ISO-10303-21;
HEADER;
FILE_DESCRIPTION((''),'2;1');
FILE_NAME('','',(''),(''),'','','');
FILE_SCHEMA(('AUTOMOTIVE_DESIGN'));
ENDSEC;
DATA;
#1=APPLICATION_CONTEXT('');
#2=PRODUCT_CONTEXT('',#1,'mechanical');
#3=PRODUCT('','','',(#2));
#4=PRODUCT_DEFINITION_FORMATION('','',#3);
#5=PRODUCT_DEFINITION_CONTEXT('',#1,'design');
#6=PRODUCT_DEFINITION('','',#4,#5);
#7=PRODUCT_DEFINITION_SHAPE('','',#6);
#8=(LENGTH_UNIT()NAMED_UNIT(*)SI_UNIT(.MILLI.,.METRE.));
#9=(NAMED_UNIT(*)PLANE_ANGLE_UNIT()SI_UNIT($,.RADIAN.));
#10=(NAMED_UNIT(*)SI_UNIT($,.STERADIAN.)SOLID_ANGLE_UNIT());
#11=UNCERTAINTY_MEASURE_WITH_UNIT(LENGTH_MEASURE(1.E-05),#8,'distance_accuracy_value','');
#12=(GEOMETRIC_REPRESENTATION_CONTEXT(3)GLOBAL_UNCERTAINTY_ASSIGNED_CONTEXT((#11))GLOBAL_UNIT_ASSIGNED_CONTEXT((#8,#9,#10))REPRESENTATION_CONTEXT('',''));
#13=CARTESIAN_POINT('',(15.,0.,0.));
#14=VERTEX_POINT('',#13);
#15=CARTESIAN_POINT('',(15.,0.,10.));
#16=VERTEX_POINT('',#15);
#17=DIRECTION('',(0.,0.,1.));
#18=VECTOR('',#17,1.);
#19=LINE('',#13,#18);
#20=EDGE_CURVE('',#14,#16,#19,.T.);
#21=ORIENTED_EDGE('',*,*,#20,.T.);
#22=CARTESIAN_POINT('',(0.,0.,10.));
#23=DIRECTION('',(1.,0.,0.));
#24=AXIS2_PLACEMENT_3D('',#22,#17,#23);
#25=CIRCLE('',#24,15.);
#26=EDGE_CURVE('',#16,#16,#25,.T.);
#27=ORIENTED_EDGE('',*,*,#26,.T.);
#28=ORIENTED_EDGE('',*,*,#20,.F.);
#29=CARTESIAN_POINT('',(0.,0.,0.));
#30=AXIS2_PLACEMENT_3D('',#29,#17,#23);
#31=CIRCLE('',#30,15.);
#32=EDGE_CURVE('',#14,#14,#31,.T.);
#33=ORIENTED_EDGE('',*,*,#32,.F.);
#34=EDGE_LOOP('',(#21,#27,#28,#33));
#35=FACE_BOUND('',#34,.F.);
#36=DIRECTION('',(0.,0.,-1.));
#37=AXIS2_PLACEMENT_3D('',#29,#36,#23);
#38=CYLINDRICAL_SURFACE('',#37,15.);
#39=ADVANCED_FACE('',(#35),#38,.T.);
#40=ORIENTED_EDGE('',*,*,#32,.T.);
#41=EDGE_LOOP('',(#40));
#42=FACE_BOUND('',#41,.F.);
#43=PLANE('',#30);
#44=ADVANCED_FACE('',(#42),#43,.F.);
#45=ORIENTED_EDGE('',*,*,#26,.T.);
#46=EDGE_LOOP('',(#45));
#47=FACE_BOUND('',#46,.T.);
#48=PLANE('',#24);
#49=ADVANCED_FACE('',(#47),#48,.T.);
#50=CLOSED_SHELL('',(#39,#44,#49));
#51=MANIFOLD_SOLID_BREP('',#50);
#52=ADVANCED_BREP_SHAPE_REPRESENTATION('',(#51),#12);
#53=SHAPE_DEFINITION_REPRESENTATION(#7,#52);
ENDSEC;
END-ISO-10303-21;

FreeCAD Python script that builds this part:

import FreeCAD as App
import Part
import Sketcher

V = App.Vector
Q = App.Units.Quantity

doc = App.newDocument("Part")
params = doc.addObject("Spreadsheet::Sheet", "Params")
for row, (alias, value) in enumerate([
    ("sketch1_diameter", "30 mm"),
    ("pad1_length", "10 mm"),
], start=1):
    params.set(f"A{row}", alias)
    params.set(f"B{row}", "=" + value)
    params.setAlias(f"B{row}", alias)

body = doc.addObject("PartDesign::Body", "Body")

sketch1 = doc.addObject("Sketcher::SketchObject", "Sketch")
body.addObject(sketch1)
sketch1.AttachmentSupport = (doc.XY_Plane, [""])
sketch1.MapMode = "FlatFace"
sketch1.addGeometry(Part.Circle(V(0, 0, 0), V(0, 0, 1), 15), False)
sketch1.addConstraint([
    Sketcher.Constraint("Coincident", 0, 3, -1, 1),
    Sketcher.Constraint("Diameter", 0, Q("30 mm")),
])
sketch1.setExpression("Constraints[1]", "Params.sketch1_diameter")
pad1 = doc.addObject("PartDesign::Pad", "Pad")
body.addObject(pad1)
pad1.Profile = sketch1
pad1.setExpression("Length", "Params.pad1_length")

doc.recompute()
